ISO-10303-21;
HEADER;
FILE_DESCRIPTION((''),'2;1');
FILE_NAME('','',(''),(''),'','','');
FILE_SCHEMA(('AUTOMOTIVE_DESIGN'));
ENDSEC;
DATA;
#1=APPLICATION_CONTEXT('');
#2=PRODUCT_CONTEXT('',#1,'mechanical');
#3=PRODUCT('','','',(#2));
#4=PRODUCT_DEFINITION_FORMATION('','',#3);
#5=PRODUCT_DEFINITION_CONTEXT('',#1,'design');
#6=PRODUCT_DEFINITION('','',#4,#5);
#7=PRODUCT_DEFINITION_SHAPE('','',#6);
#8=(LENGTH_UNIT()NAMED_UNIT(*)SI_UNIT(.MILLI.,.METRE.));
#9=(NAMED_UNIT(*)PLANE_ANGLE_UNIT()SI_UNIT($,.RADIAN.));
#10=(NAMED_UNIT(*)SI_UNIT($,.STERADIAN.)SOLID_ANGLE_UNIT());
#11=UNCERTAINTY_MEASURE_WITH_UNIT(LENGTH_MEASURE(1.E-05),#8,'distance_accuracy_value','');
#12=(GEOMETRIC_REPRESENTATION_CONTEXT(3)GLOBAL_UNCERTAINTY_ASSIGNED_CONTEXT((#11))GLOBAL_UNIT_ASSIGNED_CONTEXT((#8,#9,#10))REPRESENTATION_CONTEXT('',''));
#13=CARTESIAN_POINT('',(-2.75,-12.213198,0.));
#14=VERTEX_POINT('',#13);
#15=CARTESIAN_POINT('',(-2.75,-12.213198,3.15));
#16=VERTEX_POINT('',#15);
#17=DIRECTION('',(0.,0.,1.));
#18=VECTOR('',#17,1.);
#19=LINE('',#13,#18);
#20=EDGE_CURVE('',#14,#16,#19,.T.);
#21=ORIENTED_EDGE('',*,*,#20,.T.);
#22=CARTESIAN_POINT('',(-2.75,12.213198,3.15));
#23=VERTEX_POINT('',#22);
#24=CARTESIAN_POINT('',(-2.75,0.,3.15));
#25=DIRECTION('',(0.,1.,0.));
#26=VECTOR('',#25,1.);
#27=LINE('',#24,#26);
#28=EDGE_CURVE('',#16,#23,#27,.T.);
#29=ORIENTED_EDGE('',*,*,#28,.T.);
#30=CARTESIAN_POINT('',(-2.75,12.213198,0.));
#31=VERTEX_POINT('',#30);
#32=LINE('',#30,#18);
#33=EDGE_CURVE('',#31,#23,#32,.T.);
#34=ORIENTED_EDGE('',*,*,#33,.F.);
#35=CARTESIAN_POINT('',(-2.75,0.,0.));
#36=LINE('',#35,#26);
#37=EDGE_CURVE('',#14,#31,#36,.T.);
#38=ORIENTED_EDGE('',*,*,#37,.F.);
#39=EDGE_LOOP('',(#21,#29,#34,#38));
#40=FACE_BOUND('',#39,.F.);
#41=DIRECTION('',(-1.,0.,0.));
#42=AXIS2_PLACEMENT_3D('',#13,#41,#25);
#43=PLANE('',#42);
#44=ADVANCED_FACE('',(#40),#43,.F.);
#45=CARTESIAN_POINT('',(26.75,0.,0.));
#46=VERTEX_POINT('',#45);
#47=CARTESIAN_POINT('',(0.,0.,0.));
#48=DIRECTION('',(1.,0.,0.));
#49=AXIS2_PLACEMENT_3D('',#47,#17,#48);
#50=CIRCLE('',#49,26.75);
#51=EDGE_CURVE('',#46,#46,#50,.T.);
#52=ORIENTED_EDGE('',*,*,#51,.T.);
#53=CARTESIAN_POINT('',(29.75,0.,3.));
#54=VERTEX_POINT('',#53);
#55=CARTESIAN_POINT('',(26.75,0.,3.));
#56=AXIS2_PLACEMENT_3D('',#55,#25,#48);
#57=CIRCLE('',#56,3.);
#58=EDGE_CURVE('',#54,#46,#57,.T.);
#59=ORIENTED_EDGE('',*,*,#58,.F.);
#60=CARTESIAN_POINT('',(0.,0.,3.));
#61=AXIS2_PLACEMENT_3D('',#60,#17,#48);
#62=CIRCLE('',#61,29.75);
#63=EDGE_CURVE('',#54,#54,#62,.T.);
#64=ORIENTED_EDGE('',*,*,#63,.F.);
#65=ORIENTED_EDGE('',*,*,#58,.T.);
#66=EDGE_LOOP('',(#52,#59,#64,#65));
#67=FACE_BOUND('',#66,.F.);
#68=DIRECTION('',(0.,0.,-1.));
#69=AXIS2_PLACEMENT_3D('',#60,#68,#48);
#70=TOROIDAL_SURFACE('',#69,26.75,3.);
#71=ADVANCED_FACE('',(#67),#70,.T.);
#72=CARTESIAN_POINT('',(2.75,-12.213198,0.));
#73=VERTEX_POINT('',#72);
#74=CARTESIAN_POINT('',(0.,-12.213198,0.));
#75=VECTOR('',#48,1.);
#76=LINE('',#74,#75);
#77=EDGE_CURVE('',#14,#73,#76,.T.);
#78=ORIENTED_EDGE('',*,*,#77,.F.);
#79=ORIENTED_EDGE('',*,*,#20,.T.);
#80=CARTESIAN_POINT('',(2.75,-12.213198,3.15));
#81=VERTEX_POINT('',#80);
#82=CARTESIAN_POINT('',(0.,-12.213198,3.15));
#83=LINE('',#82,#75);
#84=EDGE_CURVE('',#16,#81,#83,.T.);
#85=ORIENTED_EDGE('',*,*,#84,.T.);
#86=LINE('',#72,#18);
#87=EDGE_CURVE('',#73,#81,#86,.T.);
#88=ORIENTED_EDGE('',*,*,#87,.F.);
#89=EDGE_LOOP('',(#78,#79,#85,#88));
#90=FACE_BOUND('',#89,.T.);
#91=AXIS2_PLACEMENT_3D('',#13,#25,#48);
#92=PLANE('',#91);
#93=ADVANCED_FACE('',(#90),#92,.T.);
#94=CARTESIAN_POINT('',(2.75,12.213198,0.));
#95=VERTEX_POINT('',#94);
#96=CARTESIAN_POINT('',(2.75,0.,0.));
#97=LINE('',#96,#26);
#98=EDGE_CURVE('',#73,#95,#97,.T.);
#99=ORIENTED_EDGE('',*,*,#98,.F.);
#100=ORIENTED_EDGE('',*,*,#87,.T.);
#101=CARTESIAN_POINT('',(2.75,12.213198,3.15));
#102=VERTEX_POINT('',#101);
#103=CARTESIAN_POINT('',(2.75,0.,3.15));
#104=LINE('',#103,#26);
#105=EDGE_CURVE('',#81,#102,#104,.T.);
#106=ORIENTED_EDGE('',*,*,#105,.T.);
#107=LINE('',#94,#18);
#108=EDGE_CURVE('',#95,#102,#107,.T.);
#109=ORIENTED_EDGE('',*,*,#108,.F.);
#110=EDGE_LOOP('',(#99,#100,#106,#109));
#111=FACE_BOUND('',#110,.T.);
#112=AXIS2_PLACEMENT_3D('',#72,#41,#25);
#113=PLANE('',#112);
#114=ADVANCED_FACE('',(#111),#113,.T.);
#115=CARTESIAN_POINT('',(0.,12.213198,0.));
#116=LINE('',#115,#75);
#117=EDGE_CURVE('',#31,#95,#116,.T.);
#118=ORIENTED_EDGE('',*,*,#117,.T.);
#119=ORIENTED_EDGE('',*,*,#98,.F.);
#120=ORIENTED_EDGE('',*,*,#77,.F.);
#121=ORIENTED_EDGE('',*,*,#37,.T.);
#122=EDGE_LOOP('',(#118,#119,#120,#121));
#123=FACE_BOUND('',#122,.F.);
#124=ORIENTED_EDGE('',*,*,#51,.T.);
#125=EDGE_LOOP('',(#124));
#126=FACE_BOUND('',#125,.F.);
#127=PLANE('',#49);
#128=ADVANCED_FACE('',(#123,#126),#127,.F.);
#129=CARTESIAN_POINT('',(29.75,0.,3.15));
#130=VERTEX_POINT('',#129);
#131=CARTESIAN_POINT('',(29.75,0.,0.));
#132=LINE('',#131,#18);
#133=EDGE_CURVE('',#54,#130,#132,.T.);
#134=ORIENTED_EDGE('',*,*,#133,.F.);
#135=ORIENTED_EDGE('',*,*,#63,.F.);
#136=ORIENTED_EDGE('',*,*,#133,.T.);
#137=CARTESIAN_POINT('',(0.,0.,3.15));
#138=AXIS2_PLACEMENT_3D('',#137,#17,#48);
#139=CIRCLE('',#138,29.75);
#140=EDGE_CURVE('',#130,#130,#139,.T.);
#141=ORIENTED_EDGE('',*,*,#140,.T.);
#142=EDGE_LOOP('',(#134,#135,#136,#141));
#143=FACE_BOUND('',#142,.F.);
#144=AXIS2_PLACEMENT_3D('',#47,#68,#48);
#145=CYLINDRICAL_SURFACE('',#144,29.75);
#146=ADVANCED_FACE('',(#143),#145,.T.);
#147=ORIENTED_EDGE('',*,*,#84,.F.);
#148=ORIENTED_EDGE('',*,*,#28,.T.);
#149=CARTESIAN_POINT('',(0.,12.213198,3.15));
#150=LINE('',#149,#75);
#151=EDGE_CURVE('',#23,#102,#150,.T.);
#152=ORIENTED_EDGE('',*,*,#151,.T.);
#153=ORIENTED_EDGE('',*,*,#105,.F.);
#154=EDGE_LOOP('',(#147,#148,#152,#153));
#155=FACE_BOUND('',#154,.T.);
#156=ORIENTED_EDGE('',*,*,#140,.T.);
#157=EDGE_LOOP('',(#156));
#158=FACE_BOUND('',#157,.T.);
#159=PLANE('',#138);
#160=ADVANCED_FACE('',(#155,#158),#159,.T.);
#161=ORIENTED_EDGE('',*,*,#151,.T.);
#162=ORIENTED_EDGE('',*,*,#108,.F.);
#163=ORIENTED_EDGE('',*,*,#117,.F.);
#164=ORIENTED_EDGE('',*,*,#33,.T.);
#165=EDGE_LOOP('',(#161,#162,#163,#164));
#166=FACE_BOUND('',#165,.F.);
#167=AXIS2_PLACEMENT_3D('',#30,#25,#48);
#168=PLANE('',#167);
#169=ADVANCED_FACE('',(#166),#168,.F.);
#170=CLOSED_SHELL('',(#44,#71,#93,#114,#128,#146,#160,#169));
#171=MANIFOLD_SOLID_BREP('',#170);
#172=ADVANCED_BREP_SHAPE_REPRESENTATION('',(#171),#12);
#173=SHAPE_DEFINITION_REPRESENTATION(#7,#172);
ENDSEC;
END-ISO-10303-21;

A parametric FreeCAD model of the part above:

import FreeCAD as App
import Part
import Sketcher
from FreeCAD import Vector


def edges_at(feature, points):
    """Names of the edges that pass closest to the given points."""
    edges = feature.Shape.Edges
    near = lambda p: min(range(len(edges)), key=lambda i: edges[i].distToShape(Part.Vertex(*p))[0])
    return sorted({f"Edge{near(p) + 1}" for p in points})


def add_polygon(sketch, points):
    """Adds a closed chain of lines whose ends are joined by coincident constraints."""
    first, n = sketch.GeometryCount, len(points)
    for a, b in zip(points, points[1:] + points[:1]):
        sketch.addGeometry(Part.LineSegment(App.Vector(*a, 0), App.Vector(*b, 0)), False)
    for i in range(n):
        sketch.addConstraint(Sketcher.Constraint("Coincident", first + i, 2, first + (i + 1) % n, 1))

doc = App.newDocument("Part")
body = doc.addObject("PartDesign::Body", "Body")

# Sketch on XY plane
sketch1 = body.newObject("Sketcher::SketchObject", "Sketch")
sketch1.AttachmentSupport = (doc.getObject("XY_Plane"), [""])
sketch1.MapMode = "FlatFace"
sketch1.addGeometry(Part.Circle(Vector(0, 0, 0), Vector(0, 0, 1), 30), False)
sketch1.addConstraint([
    Sketcher.Constraint("Coincident", 0, 3, -1, 1),
    Sketcher.Constraint("Diameter", 0, 59.5),
])
pad1 = body.newObject("PartDesign::Pad", "Pad")
pad1.Profile = sketch1
pad1.Length = 3.15

# Sketch on XY plane
sketch2 = body.newObject("Sketcher::SketchObject", "Sketch001")
sketch2.AttachmentSupport = (doc.getObject("XY_Plane"), [""])
sketch2.MapMode = "FlatFace"
add_polygon(sketch2, [(-3, 12), (-3, -12), (3, -12), (3, 12)])  # lines 0-3
sketch2.addConstraint([
    Sketcher.Constraint("Vertical", 0),
    Sketcher.Constraint("Horizontal", 1),
    Sketcher.Constraint("Vertical", 2),
    Sketcher.Constraint("Horizontal", 3),
    Sketcher.Constraint("Symmetric", 0, 2, 2, 2, -1, 1),
    Sketcher.Constraint("DistanceX", 1, 1, 1, 2, 5.5),
    Sketcher.Constraint("DistanceY", 0, 2, 0, 1, 24.426396),
])
pocket1 = body.newObject("PartDesign::Pocket", "Pocket")
pocket1.Profile = sketch2
pocket1.Length = 3.15
pocket1.Reversed = True
doc.recompute()

fillet = body.newObject("PartDesign::Fillet", "Fillet")
fillet.Base = (pocket1, edges_at(pocket1, [(-29.75, 0, 0)]))
fillet.Radius = 3

doc.recompute()
